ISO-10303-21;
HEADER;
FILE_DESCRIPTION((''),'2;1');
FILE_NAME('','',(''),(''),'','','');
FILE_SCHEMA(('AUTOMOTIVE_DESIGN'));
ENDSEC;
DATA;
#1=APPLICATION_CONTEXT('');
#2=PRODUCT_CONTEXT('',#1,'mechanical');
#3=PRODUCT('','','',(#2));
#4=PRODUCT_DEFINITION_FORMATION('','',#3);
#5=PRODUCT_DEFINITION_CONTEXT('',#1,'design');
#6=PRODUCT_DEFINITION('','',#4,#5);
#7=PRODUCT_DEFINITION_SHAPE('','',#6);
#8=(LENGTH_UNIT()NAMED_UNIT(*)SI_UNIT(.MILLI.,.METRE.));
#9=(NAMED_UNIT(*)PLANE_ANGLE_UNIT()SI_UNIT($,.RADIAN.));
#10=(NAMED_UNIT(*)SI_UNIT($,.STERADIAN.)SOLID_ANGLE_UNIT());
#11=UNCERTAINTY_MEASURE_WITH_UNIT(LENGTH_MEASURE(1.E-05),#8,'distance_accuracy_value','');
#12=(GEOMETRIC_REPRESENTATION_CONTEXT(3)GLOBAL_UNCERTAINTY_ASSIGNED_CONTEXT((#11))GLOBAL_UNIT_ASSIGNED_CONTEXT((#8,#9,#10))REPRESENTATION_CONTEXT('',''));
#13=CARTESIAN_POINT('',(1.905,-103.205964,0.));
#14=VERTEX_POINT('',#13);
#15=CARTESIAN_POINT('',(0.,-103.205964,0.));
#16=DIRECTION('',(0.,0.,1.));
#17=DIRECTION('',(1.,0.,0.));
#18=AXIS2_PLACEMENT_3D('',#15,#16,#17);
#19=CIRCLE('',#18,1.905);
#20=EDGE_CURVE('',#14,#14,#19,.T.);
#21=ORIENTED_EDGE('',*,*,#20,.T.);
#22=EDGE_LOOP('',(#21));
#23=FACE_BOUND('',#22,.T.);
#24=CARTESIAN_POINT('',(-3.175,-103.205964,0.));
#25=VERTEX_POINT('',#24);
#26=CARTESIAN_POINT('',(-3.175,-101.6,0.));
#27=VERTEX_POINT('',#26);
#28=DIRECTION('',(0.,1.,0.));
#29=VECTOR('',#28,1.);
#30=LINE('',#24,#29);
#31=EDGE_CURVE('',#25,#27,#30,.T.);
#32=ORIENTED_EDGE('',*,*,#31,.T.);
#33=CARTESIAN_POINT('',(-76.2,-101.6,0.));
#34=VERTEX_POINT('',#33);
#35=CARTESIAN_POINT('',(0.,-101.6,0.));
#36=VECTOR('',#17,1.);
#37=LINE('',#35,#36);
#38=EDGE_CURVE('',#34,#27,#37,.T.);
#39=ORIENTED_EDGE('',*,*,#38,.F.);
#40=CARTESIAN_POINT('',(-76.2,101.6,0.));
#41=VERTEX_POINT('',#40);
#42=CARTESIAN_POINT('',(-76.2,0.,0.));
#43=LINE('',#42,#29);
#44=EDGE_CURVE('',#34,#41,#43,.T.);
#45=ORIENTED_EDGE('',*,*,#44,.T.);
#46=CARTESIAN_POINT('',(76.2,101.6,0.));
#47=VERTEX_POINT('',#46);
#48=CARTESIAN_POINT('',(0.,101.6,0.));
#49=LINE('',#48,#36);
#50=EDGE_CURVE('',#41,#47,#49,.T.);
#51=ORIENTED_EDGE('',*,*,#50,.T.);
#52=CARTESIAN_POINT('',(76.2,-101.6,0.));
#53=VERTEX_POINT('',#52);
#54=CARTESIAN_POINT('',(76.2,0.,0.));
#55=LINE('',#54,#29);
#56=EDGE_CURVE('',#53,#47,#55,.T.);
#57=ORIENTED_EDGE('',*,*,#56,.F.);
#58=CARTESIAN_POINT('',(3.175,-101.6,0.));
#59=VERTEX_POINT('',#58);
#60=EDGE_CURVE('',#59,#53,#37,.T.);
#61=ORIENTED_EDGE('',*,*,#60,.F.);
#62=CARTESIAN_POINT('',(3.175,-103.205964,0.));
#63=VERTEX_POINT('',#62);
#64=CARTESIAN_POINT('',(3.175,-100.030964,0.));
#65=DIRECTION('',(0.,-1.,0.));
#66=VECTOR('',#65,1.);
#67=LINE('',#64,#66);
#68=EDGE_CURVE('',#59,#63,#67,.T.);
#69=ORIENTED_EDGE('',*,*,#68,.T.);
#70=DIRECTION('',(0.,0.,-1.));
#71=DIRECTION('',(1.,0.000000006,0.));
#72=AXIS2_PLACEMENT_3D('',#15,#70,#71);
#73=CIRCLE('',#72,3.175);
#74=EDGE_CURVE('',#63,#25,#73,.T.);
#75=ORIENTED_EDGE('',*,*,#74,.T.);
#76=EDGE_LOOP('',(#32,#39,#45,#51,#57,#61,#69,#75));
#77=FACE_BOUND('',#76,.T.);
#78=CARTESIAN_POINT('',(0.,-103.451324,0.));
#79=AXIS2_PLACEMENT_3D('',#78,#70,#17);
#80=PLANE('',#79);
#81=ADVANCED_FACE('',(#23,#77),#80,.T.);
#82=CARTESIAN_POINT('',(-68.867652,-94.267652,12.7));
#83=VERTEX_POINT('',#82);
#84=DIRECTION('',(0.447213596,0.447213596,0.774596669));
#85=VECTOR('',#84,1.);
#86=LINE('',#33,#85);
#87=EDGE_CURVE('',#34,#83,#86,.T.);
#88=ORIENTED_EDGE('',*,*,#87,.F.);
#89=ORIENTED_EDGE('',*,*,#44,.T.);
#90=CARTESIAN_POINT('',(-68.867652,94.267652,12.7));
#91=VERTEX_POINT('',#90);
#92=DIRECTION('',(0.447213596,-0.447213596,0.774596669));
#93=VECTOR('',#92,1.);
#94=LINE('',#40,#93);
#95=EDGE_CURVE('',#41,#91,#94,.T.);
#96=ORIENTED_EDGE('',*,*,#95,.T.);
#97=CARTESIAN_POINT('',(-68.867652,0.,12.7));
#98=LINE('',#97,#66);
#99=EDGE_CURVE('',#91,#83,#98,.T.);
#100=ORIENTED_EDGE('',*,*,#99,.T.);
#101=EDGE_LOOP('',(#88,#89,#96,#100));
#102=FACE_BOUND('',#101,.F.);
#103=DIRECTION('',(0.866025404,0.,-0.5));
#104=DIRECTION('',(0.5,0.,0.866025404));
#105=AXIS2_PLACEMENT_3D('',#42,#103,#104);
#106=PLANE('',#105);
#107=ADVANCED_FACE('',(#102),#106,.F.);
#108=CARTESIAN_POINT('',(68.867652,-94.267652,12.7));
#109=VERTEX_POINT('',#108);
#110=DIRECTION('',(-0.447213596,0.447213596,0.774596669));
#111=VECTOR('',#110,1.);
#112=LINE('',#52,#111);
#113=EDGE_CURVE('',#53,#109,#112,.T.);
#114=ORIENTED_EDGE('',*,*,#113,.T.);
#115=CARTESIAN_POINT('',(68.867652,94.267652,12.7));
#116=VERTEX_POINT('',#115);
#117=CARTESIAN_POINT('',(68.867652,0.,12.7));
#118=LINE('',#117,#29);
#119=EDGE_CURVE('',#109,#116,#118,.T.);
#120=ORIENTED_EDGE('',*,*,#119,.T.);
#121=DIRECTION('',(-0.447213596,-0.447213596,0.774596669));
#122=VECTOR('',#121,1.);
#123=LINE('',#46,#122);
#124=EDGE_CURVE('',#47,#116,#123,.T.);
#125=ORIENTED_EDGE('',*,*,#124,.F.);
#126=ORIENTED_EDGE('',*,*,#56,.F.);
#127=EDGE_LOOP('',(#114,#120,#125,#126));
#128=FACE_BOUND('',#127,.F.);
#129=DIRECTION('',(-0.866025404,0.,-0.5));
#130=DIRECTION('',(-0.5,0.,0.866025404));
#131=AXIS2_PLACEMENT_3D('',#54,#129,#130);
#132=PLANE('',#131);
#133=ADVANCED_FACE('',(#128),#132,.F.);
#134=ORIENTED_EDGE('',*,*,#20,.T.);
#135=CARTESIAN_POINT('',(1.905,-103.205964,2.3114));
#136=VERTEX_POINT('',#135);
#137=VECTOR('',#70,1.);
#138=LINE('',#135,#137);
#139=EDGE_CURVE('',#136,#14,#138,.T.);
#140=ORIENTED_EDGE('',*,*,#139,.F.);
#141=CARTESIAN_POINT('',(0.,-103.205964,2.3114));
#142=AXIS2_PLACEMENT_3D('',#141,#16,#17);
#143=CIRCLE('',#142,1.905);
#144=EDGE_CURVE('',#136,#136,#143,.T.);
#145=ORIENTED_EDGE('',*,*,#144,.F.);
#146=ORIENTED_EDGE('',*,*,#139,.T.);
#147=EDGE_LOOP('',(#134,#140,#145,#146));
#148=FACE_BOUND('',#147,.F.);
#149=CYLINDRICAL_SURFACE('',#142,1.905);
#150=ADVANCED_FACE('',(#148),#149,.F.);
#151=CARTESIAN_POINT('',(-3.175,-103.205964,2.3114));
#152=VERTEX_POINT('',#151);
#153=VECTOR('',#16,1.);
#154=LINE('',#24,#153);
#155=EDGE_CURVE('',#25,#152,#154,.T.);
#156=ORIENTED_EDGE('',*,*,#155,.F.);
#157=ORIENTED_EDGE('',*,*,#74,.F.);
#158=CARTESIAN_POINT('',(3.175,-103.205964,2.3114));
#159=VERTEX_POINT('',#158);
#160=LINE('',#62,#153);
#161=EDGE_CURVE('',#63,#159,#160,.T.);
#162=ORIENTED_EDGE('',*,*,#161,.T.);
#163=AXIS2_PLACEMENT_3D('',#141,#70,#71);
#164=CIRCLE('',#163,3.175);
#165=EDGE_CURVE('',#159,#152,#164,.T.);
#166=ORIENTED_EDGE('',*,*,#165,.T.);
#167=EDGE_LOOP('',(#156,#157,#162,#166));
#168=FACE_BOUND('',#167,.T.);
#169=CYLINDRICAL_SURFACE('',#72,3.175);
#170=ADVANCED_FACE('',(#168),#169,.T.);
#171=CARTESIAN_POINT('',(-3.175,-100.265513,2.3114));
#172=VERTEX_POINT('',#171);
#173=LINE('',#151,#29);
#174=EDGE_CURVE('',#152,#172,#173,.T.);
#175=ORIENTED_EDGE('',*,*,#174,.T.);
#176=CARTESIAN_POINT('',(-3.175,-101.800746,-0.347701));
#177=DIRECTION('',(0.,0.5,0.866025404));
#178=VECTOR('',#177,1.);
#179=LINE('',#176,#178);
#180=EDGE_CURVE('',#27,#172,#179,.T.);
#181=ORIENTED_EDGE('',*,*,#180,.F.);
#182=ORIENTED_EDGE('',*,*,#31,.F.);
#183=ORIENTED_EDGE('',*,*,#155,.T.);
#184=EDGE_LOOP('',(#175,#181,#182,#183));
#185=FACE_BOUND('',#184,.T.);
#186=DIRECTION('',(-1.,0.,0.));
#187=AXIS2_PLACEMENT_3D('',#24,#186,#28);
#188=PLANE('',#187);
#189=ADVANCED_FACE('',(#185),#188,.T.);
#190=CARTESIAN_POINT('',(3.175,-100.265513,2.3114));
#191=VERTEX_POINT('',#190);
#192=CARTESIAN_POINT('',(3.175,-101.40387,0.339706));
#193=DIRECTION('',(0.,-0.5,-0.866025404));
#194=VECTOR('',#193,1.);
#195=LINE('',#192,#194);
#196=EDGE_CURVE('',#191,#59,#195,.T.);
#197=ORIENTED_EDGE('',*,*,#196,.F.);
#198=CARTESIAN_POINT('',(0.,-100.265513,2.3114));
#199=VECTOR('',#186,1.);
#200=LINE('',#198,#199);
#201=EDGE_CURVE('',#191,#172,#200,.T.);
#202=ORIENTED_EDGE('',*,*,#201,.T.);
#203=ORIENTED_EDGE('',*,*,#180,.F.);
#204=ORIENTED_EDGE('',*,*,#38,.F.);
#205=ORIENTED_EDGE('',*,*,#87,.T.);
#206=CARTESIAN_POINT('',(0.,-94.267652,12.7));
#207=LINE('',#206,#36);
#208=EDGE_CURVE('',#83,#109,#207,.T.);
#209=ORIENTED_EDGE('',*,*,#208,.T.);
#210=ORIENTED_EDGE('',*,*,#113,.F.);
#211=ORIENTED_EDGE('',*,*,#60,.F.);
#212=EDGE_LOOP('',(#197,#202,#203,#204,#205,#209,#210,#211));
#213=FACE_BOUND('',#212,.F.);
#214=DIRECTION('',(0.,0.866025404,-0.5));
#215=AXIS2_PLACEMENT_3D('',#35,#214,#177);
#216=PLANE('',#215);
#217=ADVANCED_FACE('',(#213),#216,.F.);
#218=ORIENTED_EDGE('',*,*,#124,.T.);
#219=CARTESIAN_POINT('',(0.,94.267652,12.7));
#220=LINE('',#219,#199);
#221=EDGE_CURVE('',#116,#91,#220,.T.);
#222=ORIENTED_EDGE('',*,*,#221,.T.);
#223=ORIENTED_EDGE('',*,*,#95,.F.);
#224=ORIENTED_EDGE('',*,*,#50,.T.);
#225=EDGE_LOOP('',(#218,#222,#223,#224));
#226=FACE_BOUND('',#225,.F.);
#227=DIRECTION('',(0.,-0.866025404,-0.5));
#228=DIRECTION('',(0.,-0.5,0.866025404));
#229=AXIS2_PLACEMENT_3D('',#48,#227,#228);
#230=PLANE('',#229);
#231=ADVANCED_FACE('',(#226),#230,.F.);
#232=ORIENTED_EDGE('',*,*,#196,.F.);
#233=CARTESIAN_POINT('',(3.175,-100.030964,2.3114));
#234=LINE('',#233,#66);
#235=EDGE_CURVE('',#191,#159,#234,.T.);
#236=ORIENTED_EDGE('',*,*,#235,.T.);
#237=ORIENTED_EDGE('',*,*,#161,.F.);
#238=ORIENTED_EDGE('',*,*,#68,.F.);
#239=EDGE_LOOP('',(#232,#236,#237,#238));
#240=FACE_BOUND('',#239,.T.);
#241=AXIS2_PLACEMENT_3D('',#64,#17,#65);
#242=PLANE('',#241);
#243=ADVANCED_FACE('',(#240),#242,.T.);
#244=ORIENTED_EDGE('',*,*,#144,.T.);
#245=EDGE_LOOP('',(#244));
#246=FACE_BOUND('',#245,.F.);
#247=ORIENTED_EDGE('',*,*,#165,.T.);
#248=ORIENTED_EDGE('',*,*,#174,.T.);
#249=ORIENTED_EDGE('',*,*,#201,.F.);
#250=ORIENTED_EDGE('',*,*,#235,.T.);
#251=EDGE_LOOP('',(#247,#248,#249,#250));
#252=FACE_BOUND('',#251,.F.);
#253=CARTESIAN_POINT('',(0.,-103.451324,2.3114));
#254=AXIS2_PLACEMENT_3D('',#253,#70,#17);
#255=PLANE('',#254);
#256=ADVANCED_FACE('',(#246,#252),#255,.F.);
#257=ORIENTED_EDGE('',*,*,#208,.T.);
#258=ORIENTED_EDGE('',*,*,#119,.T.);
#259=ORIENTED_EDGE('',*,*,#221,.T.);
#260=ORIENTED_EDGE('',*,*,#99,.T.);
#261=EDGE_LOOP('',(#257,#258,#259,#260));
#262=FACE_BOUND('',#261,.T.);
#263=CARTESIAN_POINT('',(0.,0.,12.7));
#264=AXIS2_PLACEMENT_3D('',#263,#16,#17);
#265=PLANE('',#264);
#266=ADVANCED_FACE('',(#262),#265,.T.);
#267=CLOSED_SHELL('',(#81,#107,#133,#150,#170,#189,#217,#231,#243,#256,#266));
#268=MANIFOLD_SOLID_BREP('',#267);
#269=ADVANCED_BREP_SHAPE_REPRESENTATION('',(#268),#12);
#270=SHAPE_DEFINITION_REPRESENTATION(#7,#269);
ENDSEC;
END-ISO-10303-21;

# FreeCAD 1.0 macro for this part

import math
import FreeCAD as App
import Part
import Sketcher
Q = App.Units.Quantity

doc = App.newDocument("Part")
body = doc.addObject("PartDesign::Body", "Body")

# Sketch on XY plane
sketch1 = body.newObject("Sketcher::SketchObject", "Sketch")
sketch1.AttachmentSupport = (doc.getObject("XY_Plane"), [""])
sketch1.MapMode = "FlatFace"
sketch1.addGeometry([
    Part.LineSegment(App.Vector(-76.2, 101.6, 0), App.Vector(-76.2, -101.6, 0)),
    Part.LineSegment(App.Vector(-76.2, -101.6, 0), App.Vector(76.2, -101.6, 0)),
    Part.LineSegment(App.Vector(76.2, -101.6, 0), App.Vector(76.2, 101.6, 0)),
    Part.LineSegment(App.Vector(76.2, 101.6, 0), App.Vector(-76.2, 101.6, 0)),
], False)
sketch1.addConstraint([
    Sketcher.Constraint("Coincident", 0, 2, 1, 1),
    Sketcher.Constraint("Coincident", 1, 2, 2, 1),
    Sketcher.Constraint("Coincident", 2, 2, 3, 1),
    Sketcher.Constraint("Coincident", 3, 2, 0, 1),
    Sketcher.Constraint("Vertical", 0),
    Sketcher.Constraint("Horizontal", 1),
    Sketcher.Constraint("Vertical", 2),
    Sketcher.Constraint("Horizontal", 3),
    Sketcher.Constraint("Symmetric", 0, 2, 2, 2, -1, 1),
    Sketcher.Constraint("DistanceX", 1, 1, 1, 2, Q("6 in")),
    Sketcher.Constraint("DistanceY", 0, 2, 0, 1, Q("8 in")),
])
pad1 = body.newObject("PartDesign::Pad", "Pad")
pad1.Profile = sketch1
pad1.Length = Q("0.5 in")
pad1.TaperAngle = -30

# Sketch on XY plane
sketch2 = body.newObject("Sketcher::SketchObject", "Sketch001")
sketch2.AttachmentSupport = (doc.getObject("XY_Plane"), [""])
sketch2.MapMode = "FlatFace"
sketch2.addGeometry([
    Part.ArcOfCircle(Part.Circle(App.Vector(0, -103.205964, 0), App.Vector(0, 0, 1), 3.175), math.radians(-179.999996), math.radians(0)),
    Part.LineSegment(App.Vector(-3.175, -103.205964, 0), App.Vector(-3.175, -100.030964, 0)),
    Part.LineSegment(App.Vector(-3.175, -100.030964, 0), App.Vector(3.175, -100.030964, 0)),
    Part.LineSegment(App.Vector(3.175, -100.030964, 0), App.Vector(3.175, -103.205964, 0)),
], False)
sketch2.addConstraint([
    Sketcher.Constraint("Tangent", 0, 1, 1, 1),
    Sketcher.Constraint("Coincident", 1, 2, 2, 1),
    Sketcher.Constraint("Coincident", 2, 2, 3, 1),
    Sketcher.Constraint("Tangent", 3, 2, 0, 2),
    Sketcher.Constraint("Vertical", 1),
    Sketcher.Constraint("Horizontal", 2),
    Sketcher.Constraint("Vertical", 3),
    Sketcher.Constraint("PointOnObject", 0, 3, -2),
    Sketcher.Constraint("Radius", 0, Q("0.125 in")),
    Sketcher.Constraint("DistanceY", 1, 1, 1, 2, Q("0.125 in")),
    Sketcher.Constraint("DistanceY", 0, 3, -1, 1, 103.205964),
])
pad2 = body.newObject("PartDesign::Pad", "Pad001")
pad2.Profile = sketch2
pad2.Length = Q("0.091 in")

# Sketch on XY plane
sketch3 = body.newObject("Sketcher::SketchObject", "Sketch002")
sketch3.AttachmentSupport = (doc.getObject("XY_Plane"), [""])
sketch3.MapMode = "FlatFace"
sketch3.AttachmentOffset = App.Placement(App.Vector(0, 0, 0.091 * 25.4), App.Rotation())
sketch3.addGeometry(Part.Circle(App.Vector(0, -103.205964, 0), App.Vector(0, 0, 1), 1.905), False)
sketch3.addConstraint([
    Sketcher.Constraint("PointOnObject", 0, 3, -2),
    Sketcher.Constraint("Diameter", 0, Q("0.15 in")),
    Sketcher.Constraint("DistanceY", 0, 3, -1, 1, 103.205964),
])
pocket1 = body.newObject("PartDesign::Pocket", "Pocket")
pocket1.Profile = sketch3
pocket1.Length = Q("1 in")

doc.recompute()
